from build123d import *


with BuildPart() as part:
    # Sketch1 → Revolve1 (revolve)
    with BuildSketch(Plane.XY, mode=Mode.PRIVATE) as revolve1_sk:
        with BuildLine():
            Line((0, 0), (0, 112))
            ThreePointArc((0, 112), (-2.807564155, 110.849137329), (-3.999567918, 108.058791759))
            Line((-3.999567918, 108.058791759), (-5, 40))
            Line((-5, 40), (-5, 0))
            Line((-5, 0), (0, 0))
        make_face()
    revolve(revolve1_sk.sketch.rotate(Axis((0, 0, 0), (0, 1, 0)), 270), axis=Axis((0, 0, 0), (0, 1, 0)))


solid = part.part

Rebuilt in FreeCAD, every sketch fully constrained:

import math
import FreeCAD as App
import Part
import Sketcher
Q = App.Units.Quantity

doc = App.newDocument("Part")
params = doc.addObject("Spreadsheet::Sheet", "Params")
for row, (alias, value) in enumerate([
    ("sketch1_radius", "4 mm"),
    ("sketch1_width", "5 mm"),
    ("sketch1_height", "112 mm"),
    ("sketch1_height2", "40 mm"),
    ("revolution_angle", "360 deg"),
], start=1):
    params.set(f"A{row}", alias)
    params.set(f"B{row}", "=" + value)
    params.setAlias(f"B{row}", alias)

body = doc.addObject("PartDesign::Body", "Body")

sketch1 = body.newObject("Sketcher::SketchObject", "Sketch")
sketch1.AttachmentSupport = (doc.getObject("XY_Plane"), [""])
sketch1.MapMode = "FlatFace"
sketch1.addGeometry([
    Part.LineSegment(App.Vector(0, 0, 0), App.Vector(0, 112, 0)),
    Part.ArcOfCircle(Part.Circle(App.Vector(0, 108, 0), App.Vector(0, 0, 1), 4), math.radians(90), math.radians(179)),
    Part.LineSegment(App.Vector(-4, 108.1, 0), App.Vector(-5, 40, 0)),
    Part.LineSegment(App.Vector(-5, 40, 0), App.Vector(-5, 0, 0)),
    Part.LineSegment(App.Vector(-5, 0, 0), App.Vector(0, 0, 0)),
], False)
sketch1.addConstraint([
    Sketcher.Constraint("Coincident", 0, 2, 1, 1),
    Sketcher.Constraint("Tangent", 1, 2, 2, 1),
    Sketcher.Constraint("Coincident", 2, 2, 3, 1),
    Sketcher.Constraint("Coincident", 3, 2, 4, 1),
    Sketcher.Constraint("Coincident", 4, 2, 0, 1),
    Sketcher.Constraint("Vertical", 0),
    Sketcher.Constraint("Vertical", 3),
    Sketcher.Constraint("Horizontal", 4),
    Sketcher.Constraint("Coincident", 4, 2, -1, 1),
    Sketcher.Constraint("PointOnObject", 1, 3, -2),
    Sketcher.Constraint("Radius", 1, Q("4 mm")),
    Sketcher.Constraint("DistanceX", 4, 1, 4, 2, Q("5 mm")),
    Sketcher.Constraint("DistanceY", 0, 1, 0, 2, Q("112 mm")),
    Sketcher.Constraint("DistanceY", 3, 2, 3, 1, Q("40 mm")),
])
sketch1.setExpression("Constraints[10]", "Params.sketch1_radius")
sketch1.setExpression("Constraints[11]", "Params.sketch1_width")
sketch1.setExpression("Constraints[12]", "Params.sketch1_height")
sketch1.setExpression("Constraints[13]", "Params.sketch1_height2")
revolution = body.newObject("PartDesign::Revolution", "Revolution")
revolution.Profile = sketch1
revolution.ReferenceAxis = (sketch1, ["V_Axis"])
revolution.setExpression("Angle", "Params.revolution_angle")

doc.recompute()
